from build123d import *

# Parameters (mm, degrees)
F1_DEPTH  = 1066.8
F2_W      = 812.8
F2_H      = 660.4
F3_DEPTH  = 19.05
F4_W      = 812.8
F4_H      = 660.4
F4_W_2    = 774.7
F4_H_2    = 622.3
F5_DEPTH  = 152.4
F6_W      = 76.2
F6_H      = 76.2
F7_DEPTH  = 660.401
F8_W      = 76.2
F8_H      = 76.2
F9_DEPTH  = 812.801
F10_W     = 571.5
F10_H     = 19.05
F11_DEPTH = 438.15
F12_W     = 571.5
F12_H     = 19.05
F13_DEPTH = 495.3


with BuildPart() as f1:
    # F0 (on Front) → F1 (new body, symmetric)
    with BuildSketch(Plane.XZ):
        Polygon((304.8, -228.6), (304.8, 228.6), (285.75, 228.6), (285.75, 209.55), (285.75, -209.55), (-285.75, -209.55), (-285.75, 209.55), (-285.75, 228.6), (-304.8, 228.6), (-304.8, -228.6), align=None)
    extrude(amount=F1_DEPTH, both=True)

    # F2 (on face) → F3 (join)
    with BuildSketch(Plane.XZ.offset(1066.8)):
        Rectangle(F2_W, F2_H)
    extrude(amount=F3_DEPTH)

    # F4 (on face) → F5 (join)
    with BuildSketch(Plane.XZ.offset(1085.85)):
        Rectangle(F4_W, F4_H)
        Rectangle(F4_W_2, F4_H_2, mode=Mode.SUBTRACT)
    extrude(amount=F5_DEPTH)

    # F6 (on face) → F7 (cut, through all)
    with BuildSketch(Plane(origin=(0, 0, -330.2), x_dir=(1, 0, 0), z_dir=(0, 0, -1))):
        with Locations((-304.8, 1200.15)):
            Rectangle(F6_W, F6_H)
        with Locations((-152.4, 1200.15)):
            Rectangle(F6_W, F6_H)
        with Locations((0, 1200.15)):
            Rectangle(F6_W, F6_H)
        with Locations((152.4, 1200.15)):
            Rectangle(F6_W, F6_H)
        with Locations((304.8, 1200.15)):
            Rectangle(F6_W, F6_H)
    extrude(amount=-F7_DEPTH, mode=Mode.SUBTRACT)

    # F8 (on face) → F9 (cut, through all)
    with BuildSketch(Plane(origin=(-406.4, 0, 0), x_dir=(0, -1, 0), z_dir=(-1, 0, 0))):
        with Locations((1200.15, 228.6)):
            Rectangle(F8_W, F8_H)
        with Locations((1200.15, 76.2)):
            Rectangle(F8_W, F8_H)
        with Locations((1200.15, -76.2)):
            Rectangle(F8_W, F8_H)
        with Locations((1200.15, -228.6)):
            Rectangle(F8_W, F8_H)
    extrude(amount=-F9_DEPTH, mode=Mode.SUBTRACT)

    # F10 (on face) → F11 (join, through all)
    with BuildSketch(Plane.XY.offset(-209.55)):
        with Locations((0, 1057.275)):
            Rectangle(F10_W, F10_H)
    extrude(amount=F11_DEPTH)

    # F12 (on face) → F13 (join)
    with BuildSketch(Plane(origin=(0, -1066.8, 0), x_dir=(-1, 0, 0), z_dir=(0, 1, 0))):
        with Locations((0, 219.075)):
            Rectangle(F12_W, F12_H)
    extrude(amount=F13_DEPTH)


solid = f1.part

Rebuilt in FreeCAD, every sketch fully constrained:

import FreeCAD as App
import Part
import Sketcher

V = App.Vector
Q = App.Units.Quantity


def add_polygon(sketch, points):
    """Adds a closed chain of lines whose ends are joined by coincident constraints."""
    first, n = sketch.GeometryCount, len(points)
    for a, b in zip(points, points[1:] + points[:1]):
        sketch.addGeometry(Part.LineSegment(App.Vector(*a, 0), App.Vector(*b, 0)), False)
    for i in range(n):
        sketch.addConstraint(Sketcher.Constraint("Coincident", first + i, 2, first + (i + 1) % n, 1))

doc = App.newDocument("Part")
body = doc.addObject("PartDesign::Body", "Body")

sketch1 = doc.addObject("Sketcher::SketchObject", "Sketch")
body.addObject(sketch1)
sketch1.AttachmentSupport = (doc.XZ_Plane, [""])
sketch1.MapMode = "FlatFace"
add_polygon(sketch1, [(304.8, -228.6), (304.8, 228.6), (285.75, 228.6), (285.75, -209.55), (-285.75, -209.55), (-285.75, 228.6), (-304.8, 228.6), (-304.8, -228.6)])
sketch1.addConstraint([
    Sketcher.Constraint("Vertical", 0),
    Sketcher.Constraint("Horizontal", 1),
    Sketcher.Constraint("Vertical", 2),
    Sketcher.Constraint("Horizontal", 3),
    Sketcher.Constraint("Vertical", 4),
    Sketcher.Constraint("Horizontal", 5),
    Sketcher.Constraint("Vertical", 6),
    Sketcher.Constraint("Horizontal", 7),
    Sketcher.Constraint("Symmetric", 0, 2, 6, 2, -1, 1),
    Sketcher.Constraint("Symmetric", 1, 2, 4, 2, -2),
    Sketcher.Constraint("DistanceX", 7, 1, 7, 2, Q("24 in")),
    Sketcher.Constraint("DistanceY", 0, 1, 0, 2, Q("18 in")),
    Sketcher.Constraint("DistanceX", 3, 2, 3, 1, Q("22.5 in")),
    Sketcher.Constraint("DistanceY", 2, 2, 2, 1, Q("17.25 in")),
])
pad1 = doc.addObject("PartDesign::Pad", "Pad")
body.addObject(pad1)
pad1.Profile = sketch1
pad1.Length = Q("84 in")
pad1.Midplane = True

sketch2 = doc.addObject("Sketcher::SketchObject", "Sketch001")
body.addObject(sketch2)
sketch2.AttachmentSupport = (doc.XZ_Plane, [""])
sketch2.MapMode = "FlatFace"
sketch2.AttachmentOffset = App.Placement(V(0, 0, 42 * 25.4), App.Rotation())
add_polygon(sketch2, [(-406.4, 330.2), (-406.4, -330.2), (406.4, -330.2), (406.4, 330.2)])
sketch2.addConstraint([
    Sketcher.Constraint("Vertical", 0),
    Sketcher.Constraint("Horizontal", 1),
    Sketcher.Constraint("Vertical", 2),
    Sketcher.Constraint("Horizontal", 3),
    Sketcher.Constraint("Symmetric", 0, 2, 2, 2, -1, 1),
    Sketcher.Constraint("DistanceX", 1, 1, 1, 2, Q("32 in")),
    Sketcher.Constraint("DistanceY", 0, 2, 0, 1, Q("26 in")),
])
pad2 = doc.addObject("PartDesign::Pad", "Pad001")
body.addObject(pad2)
pad2.Profile = sketch2
pad2.Length = Q("0.75 in")

sketch3 = doc.addObject("Sketcher::SketchObject", "Sketch002")
body.addObject(sketch3)
sketch3.AttachmentSupport = (doc.XZ_Plane, [""])
sketch3.MapMode = "FlatFace"
sketch3.AttachmentOffset = App.Placement(V(0, 0, 42.75 * 25.4), App.Rotation())
add_polygon(sketch3, [(-406.4, 330.2), (-406.4, -330.2), (406.4, -330.2), (406.4, 330.2)])
add_polygon(sketch3, [(387.35, -311.15), (-387.35, -311.15), (-387.35, 311.15), (387.35, 311.15)])
sketch3.addConstraint([
    Sketcher.Constraint("Vertical", 0),
    Sketcher.Constraint("Horizontal", 1),
    Sketcher.Constraint("Vertical", 2),
    Sketcher.Constraint("Horizontal", 3),
    Sketcher.Constraint("Horizontal", 4),
    Sketcher.Constraint("Vertical", 5),
    Sketcher.Constraint("Horizontal", 6),
    Sketcher.Constraint("Vertical", 7),
    Sketcher.Constraint("Symmetric", 0, 2, 2, 2, -1, 1),
    Sketcher.Constraint("Symmetric", 4, 2, 6, 2, -1, 1),
    Sketcher.Constraint("DistanceX", 1, 1, 1, 2, Q("32 in")),
    Sketcher.Constraint("DistanceY", 0, 2, 0, 1, Q("26 in")),
    Sketcher.Constraint("DistanceX", 4, 2, 4, 1, Q("30.5 in")),
    Sketcher.Constraint("DistanceY", 5, 1, 5, 2, Q("24.5 in")),
])
pad3 = doc.addObject("PartDesign::Pad", "Pad002")
body.addObject(pad3)
pad3.Profile = sketch3
pad3.Length = Q("6 in")

sketch4 = doc.addObject("Sketcher::SketchObject", "Sketch003")
body.addObject(sketch4)
sketch4.AttachmentSupport = (doc.XY_Plane, [""])
sketch4.MapMode = "FlatFace"
sketch4.AttachmentOffset = App.Placement(V(0, 0, -13 * 25.4), App.Rotation())
add_polygon(sketch4, [(-342.9, -1238.25), (-342.9, -1162.05), (-266.7, -1162.05), (-266.7, -1238.25)])
add_polygon(sketch4, [(-190.5, -1238.25), (-190.5, -1162.05), (-114.3, -1162.05), (-114.3, -1238.25)])
add_polygon(sketch4, [(-38.1, -1238.25), (-38.1, -1162.05), (38.1, -1162.05), (38.1, -1238.25)])
add_polygon(sketch4, [(114.3, -1238.25), (114.3, -1162.05), (190.5, -1162.05), (190.5, -1238.25)])
add_polygon(sketch4, [(266.7, -1238.25), (266.7, -1162.05), (342.9, -1162.05), (342.9, -1238.25)])
sketch4.addConstraint([
    Sketcher.Constraint("Vertical", 0),
    Sketcher.Constraint("Horizontal", 1),
    Sketcher.Constraint("Vertical", 2),
    Sketcher.Constraint("Horizontal", 3),
    Sketcher.Constraint("Vertical", 4),
    Sketcher.Constraint("Horizontal", 5),
    Sketcher.Constraint("Vertical", 6),
    Sketcher.Constraint("Horizontal", 7),
    Sketcher.Constraint("Vertical", 8),
    Sketcher.Constraint("Horizontal", 9),
    Sketcher.Constraint("Vertical", 10),
    Sketcher.Constraint("Horizontal", 11),
    Sketcher.Constraint("Vertical", 12),
    Sketcher.Constraint("Horizontal", 13),
    Sketcher.Constraint("Vertical", 14),
    Sketcher.Constraint("Horizontal", 15),
    Sketcher.Constraint("Vertical", 16),
    Sketcher.Constraint("Horizontal", 17),
    Sketcher.Constraint("Vertical", 18),
    Sketcher.Constraint("Horizontal", 19),
    Sketcher.Constraint("Symmetric", 5, 2, 12, 2, -2),
    Sketcher.Constraint("Symmetric", 7, 2, 14, 2, -2),
    Sketcher.Constraint("Symmetric", 1, 2, 16, 2, -2),
    Sketcher.Constraint("Symmetric", 3, 2, 18, 2, -2),
    Sketcher.Constraint("Horizontal", 1, 2, 4, 2),
    Sketcher.Constraint("Horizontal", 3, 2, 6, 2),
    Sketcher.Constraint("Horizontal", 5, 2, 8, 2),
    Sketcher.Constraint("Horizontal", 7, 2, 10, 2),
    Sketcher.Constraint("Equal", 3, 5),
    Sketcher.Constraint("Equal", 7, 9),
    Sketcher.Constraint("Equal", 19, 0),
    Sketcher.Constraint("DistanceX", 1, 1, 1, 2, Q("3 in")),
    Sketcher.Constraint("DistanceX", 1, 2, 4, 2, Q("3 in")),
    Sketcher.Constraint("DistanceX", 5, 2, 8, 2, Q("3 in")),
    Sketcher.Constraint("DistanceX", 9, 2, 12, 2, Q("3 in")),
    Sketcher.Constraint("DistanceY", 0, 2, -1, 1, Q("45.75 in")),
])
pocket1 = doc.addObject("PartDesign::Pocket", "Pocket")
body.addObject(pocket1)
pocket1.Profile = sketch4
pocket1.Type = "ThroughAll"
pocket1.Reversed = True

sketch5 = doc.addObject("Sketcher::SketchObject", "Sketch004")
body.addObject(sketch5)
sketch5.AttachmentSupport = (doc.YZ_Plane, [""])
sketch5.MapMode = "FlatFace"
sketch5.AttachmentOffset = App.Placement(V(0, 0, -16 * 25.4), App.Rotation())
add_polygon(sketch5, [(-1162.05, 266.7), (-1162.05, 190.5), (-1238.25, 190.5), (-1238.25, 266.7)])
add_polygon(sketch5, [(-1162.05, 114.3), (-1162.05, 38.1), (-1238.25, 38.1), (-1238.25, 114.3)])
add_polygon(sketch5, [(-1162.05, -38.1), (-1162.05, -114.3), (-1238.25, -114.3), (-1238.25, -38.1)])
add_polygon(sketch5, [(-1162.05, -190.5), (-1162.05, -266.7), (-1238.25, -266.7), (-1238.25, -190.5)])
sketch5.addConstraint([
    Sketcher.Constraint("Vertical", 0),
    Sketcher.Constraint("Horizontal", 1),
    Sketcher.Constraint("Vertical", 2),
    Sketcher.Constraint("Horizontal", 3),
    Sketcher.Constraint("Vertical", 4),
    Sketcher.Constraint("Horizontal", 5),
    Sketcher.Constraint("Vertical", 6),
    Sketcher.Constraint("Horizontal", 7),
    Sketcher.Constraint("Vertical", 8),
    Sketcher.Constraint("Horizontal", 9),
    Sketcher.Constraint("Vertical", 10),
    Sketcher.Constraint("Horizontal", 11),
    Sketcher.Constraint("Vertical", 12),
    Sketcher.Constraint("Horizontal", 13),
    Sketcher.Constraint("Vertical", 14),
    Sketcher.Constraint("Horizontal", 15),
    Sketcher.Constraint("Symmetric", 7, 2, 8, 2, -1),
    Sketcher.Constraint("Symmetric", 5, 2, 10, 2, -1),
    Sketcher.Constraint("Symmetric", 3, 2, 12, 2, -1),
    Sketcher.Constraint("Symmetric", 1, 2, 14, 2, -1),
    Sketcher.Constraint("Vertical", 3, 2, 4, 2),
    Sketcher.Constraint("Vertical", 2, 2, 5, 2),
    Sketcher.Constraint("Equal", 15, 0),
    Sketcher.Constraint("Equal", 2, 4),
    Sketcher.Constraint("DistanceX", 1, 2, 1, 1, Q("3 in")),
    Sketcher.Constraint("DistanceY", 4, 2, 0, 2, Q("6 in")),
    Sketcher.Constraint("DistanceY", 8, 2, 4, 2, Q("6 in")),
    Sketcher.Constraint("DistanceX", 0, 2, -1, 1, Q("45.75 in")),
])
pocket2 = doc.addObject("PartDesign::Pocket", "Pocket001")
body.addObject(pocket2)
pocket2.Profile = sketch5
pocket2.Type = "ThroughAll"
pocket2.Reversed = True

sketch6 = doc.addObject("Sketcher::SketchObject", "Sketch005")
body.addObject(sketch6)
sketch6.AttachmentSupport = (doc.XY_Plane, [""])
sketch6.MapMode = "FlatFace"
sketch6.AttachmentOffset = App.Placement(V(0, 0, -8.25 * 25.4), App.Rotation())
add_polygon(sketch6, [(-285.75, 1066.8), (-285.75, 1047.75), (285.75, 1047.75), (285.75, 1066.8)])
sketch6.addConstraint([
    Sketcher.Constraint("Vertical", 0),
    Sketcher.Constraint("Horizontal", 1),
    Sketcher.Constraint("Vertical", 2),
    Sketcher.Constraint("Horizontal", 3),
    Sketcher.Constraint("DistanceX", 1, 1, 1, 2, Q("22.5 in")),
    Sketcher.Constraint("DistanceY", -1, 1, 2, 2, Q("42 in")),
    Sketcher.Constraint("DistanceY", 0, 2, 0, 1, Q("0.75 in")),
    Sketcher.Constraint("DistanceX", 0, 2, -1, 1, Q("11.25 in")),
])
pad4 = doc.addObject("PartDesign::Pad", "Pad003")
body.addObject(pad4)
pad4.Profile = sketch6
pad4.Length = Q("17.25 in")

sketch7 = doc.addObject("Sketcher::SketchObject", "Sketch006")
body.addObject(sketch7)
sketch7.AttachmentSupport = (doc.XZ_Plane, [""])
sketch7.MapMode = "FlatFace"
sketch7.AttachmentOffset = App.Placement(V(0, 0, 42 * 25.4), App.Rotation())
add_polygon(sketch7, [(285.75, 228.6), (285.75, 209.55), (-285.75, 209.55), (-285.75, 228.6)])
sketch7.addConstraint([
    Sketcher.Constraint("Vertical", 0),
    Sketcher.Constraint("Horizontal", 1),
    Sketcher.Constraint("Vertical", 2),
    Sketcher.Constraint("Horizontal", 3),
    Sketcher.Constraint("DistanceX", 1, 2, 1, 1, Q("22.5 in")),
    Sketcher.Constraint("DistanceY", -1, 1, 2, 2, Q("9 in")),
    Sketcher.Constraint("DistanceY", 0, 2, 0, 1, Q("0.75 in")),
    Sketcher.Constraint("DistanceX", -1, 1, 0, 2, Q("11.25 in")),
])
pad5 = doc.addObject("PartDesign::Pad", "Pad004")
body.addObject(pad5)
pad5.Profile = sketch7
pad5.Length = Q("19.5 in")
pad5.Reversed = True

doc.recompute()
